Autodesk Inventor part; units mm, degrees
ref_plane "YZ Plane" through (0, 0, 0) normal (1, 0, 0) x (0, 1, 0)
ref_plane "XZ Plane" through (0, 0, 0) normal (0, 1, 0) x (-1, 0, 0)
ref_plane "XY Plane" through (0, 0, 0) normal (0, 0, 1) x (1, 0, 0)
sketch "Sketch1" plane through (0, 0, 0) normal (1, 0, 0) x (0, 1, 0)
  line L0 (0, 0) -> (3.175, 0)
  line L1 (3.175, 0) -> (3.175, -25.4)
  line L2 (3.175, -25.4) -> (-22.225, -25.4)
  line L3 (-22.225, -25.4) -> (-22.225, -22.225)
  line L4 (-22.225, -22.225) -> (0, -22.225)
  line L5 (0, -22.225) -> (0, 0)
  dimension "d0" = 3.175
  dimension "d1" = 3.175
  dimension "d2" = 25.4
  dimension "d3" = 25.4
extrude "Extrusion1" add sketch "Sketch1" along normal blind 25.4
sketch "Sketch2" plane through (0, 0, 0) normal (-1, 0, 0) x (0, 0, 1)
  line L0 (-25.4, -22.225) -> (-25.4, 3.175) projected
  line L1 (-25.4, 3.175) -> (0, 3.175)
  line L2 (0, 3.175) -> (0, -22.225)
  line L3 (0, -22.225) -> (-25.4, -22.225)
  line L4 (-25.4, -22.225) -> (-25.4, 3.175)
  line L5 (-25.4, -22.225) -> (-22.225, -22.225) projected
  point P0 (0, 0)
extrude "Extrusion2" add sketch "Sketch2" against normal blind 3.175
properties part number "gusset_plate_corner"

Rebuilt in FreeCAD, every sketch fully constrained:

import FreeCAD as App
import Part
import Sketcher
from FreeCAD import Vector
Q = App.Units.Quantity

doc = App.newDocument("Part")
body = doc.addObject("PartDesign::Body", "Body")

# Sketch on YZ plane
sketch1 = doc.addObject("Sketcher::SketchObject", "Sketch")
body.addObject(sketch1)
sketch1.AttachmentSupport = (doc.YZ_Plane, [""])
sketch1.MapMode = "FlatFace"
sketch1.addGeometry(Part.LineSegment(Vector(3.175, 0, 0), Vector(0, 0, 0)), False)
sketch1.addGeometry(Part.LineSegment(Vector(0, 0, 0), Vector(0, -22.225, 0)), False)
sketch1.addGeometry(Part.LineSegment(Vector(0, -22.225, 0), Vector(-22.225, -22.225, 0)), False)
sketch1.addGeometry(Part.LineSegment(Vector(-22.225, -22.225, 0), Vector(-22.225, -25.4, 0)), False)
sketch1.addGeometry(Part.LineSegment(Vector(-22.225, -25.4, 0), Vector(3.175, -25.4, 0)), False)
sketch1.addGeometry(Part.LineSegment(Vector(3.175, -25.4, 0), Vector(3.175, 0, 0)), False)
sketch1.addConstraint(Sketcher.Constraint("Coincident", 0, 2, 1, 1))
sketch1.addConstraint(Sketcher.Constraint("Coincident", 1, 2, 2, 1))
sketch1.addConstraint(Sketcher.Constraint("Coincident", 2, 2, 3, 1))
sketch1.addConstraint(Sketcher.Constraint("Coincident", 3, 2, 4, 1))
sketch1.addConstraint(Sketcher.Constraint("Coincident", 4, 2, 5, 1))
sketch1.addConstraint(Sketcher.Constraint("Coincident", 5, 2, 0, 1))
sketch1.addConstraint(Sketcher.Constraint("Horizontal", 0))
sketch1.addConstraint(Sketcher.Constraint("Vertical", 1))
sketch1.addConstraint(Sketcher.Constraint("Horizontal", 2))
sketch1.addConstraint(Sketcher.Constraint("Vertical", 3))
sketch1.addConstraint(Sketcher.Constraint("Horizontal", 4))
sketch1.addConstraint(Sketcher.Constraint("Vertical", 5))
sketch1.addConstraint(Sketcher.Constraint("Coincident", 0, 2, -1, 1))
sketch1.addConstraint(Sketcher.Constraint("Equal", 2, 1))
sketch1.addConstraint(Sketcher.Constraint("Equal", 0, 3))
sketch1.addConstraint(Sketcher.Constraint("DistanceX", 4, 1, 4, 2, Q("1 in")))
sketch1.addConstraint(Sketcher.Constraint("DistanceX", 0, 2, 0, 1, Q("0.125 in")))
pad1 = doc.addObject("PartDesign::Pad", "Pad")
body.addObject(pad1)
pad1.Profile = sketch1
pad1.Length = Q("1 in")

# Sketch on YZ plane
sketch2 = doc.addObject("Sketcher::SketchObject", "Sketch001")
body.addObject(sketch2)
sketch2.AttachmentSupport = (doc.YZ_Plane, [""])
sketch2.MapMode = "FlatFace"
sketch2.addGeometry(Part.LineSegment(Vector(3.175, -25.4, 0), Vector(-22.225, -25.4, 0)), False)
sketch2.addGeometry(Part.LineSegment(Vector(-22.225, -25.4, 0), Vector(-22.225, 0, 0)), False)
sketch2.addGeometry(Part.LineSegment(Vector(-22.225, 0, 0), Vector(3.175, 0, 0)), False)
sketch2.addGeometry(Part.LineSegment(Vector(3.175, 0, 0), Vector(3.175, -25.4, 0)), False)
sketch2.addConstraint(Sketcher.Constraint("Coincident", 0, 2, 1, 1))
sketch2.addConstraint(Sketcher.Constraint("Coincident", 1, 2, 2, 1))
sketch2.addConstraint(Sketcher.Constraint("Coincident", 2, 2, 3, 1))
sketch2.addConstraint(Sketcher.Constraint("Coincident", 3, 2, 0, 1))
sketch2.addConstraint(Sketcher.Constraint("Horizontal", 0))
sketch2.addConstraint(Sketcher.Constraint("Vertical", 1))
sketch2.addConstraint(Sketcher.Constraint("Horizontal", 2))
sketch2.addConstraint(Sketcher.Constraint("Vertical", 3))
sketch2.addConstraint(Sketcher.Constraint("PointOnObject", 1, 2, -1))
sketch2.addConstraint(Sketcher.Constraint("Equal", 2, 1))
sketch2.addConstraint(Sketcher.Constraint("DistanceX", 0, 2, 0, 1, Q("1 in")))
sketch2.addConstraint(Sketcher.Constraint("DistanceX", 0, 2, -1, 1, Q("0.875 in")))
pad2 = doc.addObject("PartDesign::Pad", "Pad001")
body.addObject(pad2)
pad2.Profile = sketch2
pad2.Length = Q("0.125 in")

doc.recompute()
